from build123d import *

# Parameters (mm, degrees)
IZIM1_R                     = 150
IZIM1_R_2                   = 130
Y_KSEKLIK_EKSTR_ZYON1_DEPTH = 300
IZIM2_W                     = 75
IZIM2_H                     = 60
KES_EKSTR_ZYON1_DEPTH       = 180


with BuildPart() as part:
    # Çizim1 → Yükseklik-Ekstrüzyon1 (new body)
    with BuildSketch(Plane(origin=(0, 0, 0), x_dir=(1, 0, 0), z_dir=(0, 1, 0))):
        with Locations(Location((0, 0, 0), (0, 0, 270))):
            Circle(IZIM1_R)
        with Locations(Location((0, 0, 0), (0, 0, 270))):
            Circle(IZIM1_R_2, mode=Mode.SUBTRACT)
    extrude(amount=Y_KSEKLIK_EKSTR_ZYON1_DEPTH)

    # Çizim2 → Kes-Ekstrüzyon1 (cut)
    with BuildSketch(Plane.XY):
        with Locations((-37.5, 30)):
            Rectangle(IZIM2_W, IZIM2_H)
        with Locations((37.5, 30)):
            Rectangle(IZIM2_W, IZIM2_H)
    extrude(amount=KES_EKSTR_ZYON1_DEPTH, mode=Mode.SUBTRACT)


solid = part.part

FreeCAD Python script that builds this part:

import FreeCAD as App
import Part
import Sketcher

doc = App.newDocument("Part")
params = doc.addObject("Spreadsheet::Sheet", "Params")
for row, (alias, value) in enumerate([
    ("sketch1_diameter", "300 mm"),
    ("sketch1_diameter2", "260 mm"),
    ("pad1_length", "300 mm"),
    ("sketch2_width", "150 mm"),
    ("sketch2_height", "60 mm"),
    ("pocket1_length", "180 mm"),
], start=1):
    params.set(f"A{row}", alias)
    params.set(f"B{row}", "=" + value)
    params.setAlias(f"B{row}", alias)

body = doc.addObject("PartDesign::Body", "Body")

sketch1 = body.newObject("Sketcher::SketchObject", "Sketch")
sketch1.AttachmentSupport = (doc.getObject("XZ_Plane"), [""])
sketch1.MapMode = "FlatFace"
sketch1.addGeometry([
    Part.Circle(App.Vector(0, 0, 0), App.Vector(0, 0, 1), 150),
    Part.Circle(App.Vector(0, 0, 0), App.Vector(0, 0, 1), 130),
], False)
sketch1.addConstraint([
    Sketcher.Constraint("Coincident", 0, 3, -1, 1),
    Sketcher.Constraint("Coincident", 1, 3, -1, 1),
    Sketcher.Constraint("Diameter", 0, 300.0),
    Sketcher.Constraint("Diameter", 1, 260.0),
])
sketch1.setExpression("Constraints[2]", "Params.sketch1_diameter")
sketch1.setExpression("Constraints[3]", "Params.sketch1_diameter2")
pad1 = body.newObject("PartDesign::Pad", "Pad")
pad1.Profile = sketch1
pad1.setExpression("Length", "Params.pad1_length")
pad1.Reversed = True

sketch2 = body.newObject("Sketcher::SketchObject", "Sketch001")
sketch2.AttachmentSupport = (doc.getObject("XY_Plane"), [""])
sketch2.MapMode = "FlatFace"
sketch2.addGeometry([
    Part.LineSegment(App.Vector(-75, 60, 0), App.Vector(-75, 0, 0)),
    Part.LineSegment(App.Vector(-75, 0, 0), App.Vector(75, 0, 0)),
    Part.LineSegment(App.Vector(75, 0, 0), App.Vector(75, 60, 0)),
    Part.LineSegment(App.Vector(75, 60, 0), App.Vector(-75, 60, 0)),
], False)
sketch2.addConstraint([
    Sketcher.Constraint("Coincident", 0, 2, 1, 1),
    Sketcher.Constraint("Coincident", 1, 2, 2, 1),
    Sketcher.Constraint("Coincident", 2, 2, 3, 1),
    Sketcher.Constraint("Coincident", 3, 2, 0, 1),
    Sketcher.Constraint("Vertical", 0),
    Sketcher.Constraint("Horizontal", 1),
    Sketcher.Constraint("Vertical", 2),
    Sketcher.Constraint("Horizontal", 3),
    Sketcher.Constraint("Symmetric", 0, 2, 1, 2, -1, 1),
    Sketcher.Constraint("DistanceX", 1, 1, 1, 2, 150.0),
    Sketcher.Constraint("DistanceY", 0, 2, 0, 1, 60.0),
])
sketch2.setExpression("Constraints[9]", "Params.sketch2_width")
sketch2.setExpression("Constraints[10]", "Params.sketch2_height")
pocket1 = body.newObject("PartDesign::Pocket", "Pocket")
pocket1.Profile = sketch2
pocket1.setExpression("Length", "Params.pocket1_length")
pocket1.Reversed = True

doc.recompute()
